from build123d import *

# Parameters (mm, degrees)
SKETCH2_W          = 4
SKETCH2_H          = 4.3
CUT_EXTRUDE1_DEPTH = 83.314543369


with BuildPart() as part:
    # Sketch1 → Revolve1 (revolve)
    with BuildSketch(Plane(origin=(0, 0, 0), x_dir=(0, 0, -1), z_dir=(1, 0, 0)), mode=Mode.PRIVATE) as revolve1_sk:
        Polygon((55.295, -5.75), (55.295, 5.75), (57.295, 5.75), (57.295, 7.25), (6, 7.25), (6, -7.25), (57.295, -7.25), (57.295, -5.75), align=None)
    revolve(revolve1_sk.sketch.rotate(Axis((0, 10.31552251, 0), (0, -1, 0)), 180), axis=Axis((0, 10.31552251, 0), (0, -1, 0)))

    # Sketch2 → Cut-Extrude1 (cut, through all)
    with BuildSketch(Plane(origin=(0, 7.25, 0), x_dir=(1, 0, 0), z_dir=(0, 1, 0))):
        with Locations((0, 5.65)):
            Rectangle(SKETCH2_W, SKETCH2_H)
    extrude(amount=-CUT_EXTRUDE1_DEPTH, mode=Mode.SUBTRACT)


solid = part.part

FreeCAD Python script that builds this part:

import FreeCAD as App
import Part
import Sketcher

V = App.Vector
Q = App.Units.Quantity


def add_polygon(sketch, points):
    """Adds a closed chain of lines whose ends are joined by coincident constraints."""
    first, n = sketch.GeometryCount, len(points)
    for a, b in zip(points, points[1:] + points[:1]):
        sketch.addGeometry(Part.LineSegment(App.Vector(*a, 0), App.Vector(*b, 0)), False)
    for i in range(n):
        sketch.addConstraint(Sketcher.Constraint("Coincident", first + i, 2, first + (i + 1) % n, 1))

doc = App.newDocument("Part")
body = doc.addObject("PartDesign::Body", "Body")

sketch1 = body.newObject("Sketcher::SketchObject", "Sketch")
sketch1.AttachmentSupport = (doc.getObject("YZ_Plane"), [""])
sketch1.MapMode = "FlatFace"
add_polygon(sketch1, [(-5.8, -55.3), (5.8, -55.3), (5.8, -57.3), (7.2, -57.3), (7.2, -6), (-7.2, -6), (-7.2, -57.3), (-5.8, -57.3)])
sketch1.addConstraint(Sketcher.Constraint("Horizontal", 0))
sketch1.addConstraint(Sketcher.Constraint("Vertical", 1))
sketch1.addConstraint(Sketcher.Constraint("Horizontal", 2))
sketch1.addConstraint(Sketcher.Constraint("Vertical", 3))
sketch1.addConstraint(Sketcher.Constraint("Horizontal", 4))
sketch1.addConstraint(Sketcher.Constraint("Vertical", 5))
sketch1.addConstraint(Sketcher.Constraint("Horizontal", 6))
sketch1.addConstraint(Sketcher.Constraint("Vertical", 7))
sketch1.addConstraint(Sketcher.Constraint("Symmetric", 2, 2, 5, 2, -2))
sketch1.addConstraint(Sketcher.Constraint("Equal", 2, 6))
sketch1.addConstraint(Sketcher.Constraint("DistanceY", 1, 2, 1, 1, Q("2 mm")))
sketch1.addConstraint(Sketcher.Constraint("DistanceX", 0, 1, 0, 2, Q("11.5 mm")))
sketch1.addConstraint(Sketcher.Constraint("DistanceX", 2, 1, 2, 2, Q("1.5 mm")))
sketch1.addConstraint(Sketcher.Constraint("DistanceY", 3, 2, -1, 1, Q("6 mm")))
sketch1.addConstraint(Sketcher.Constraint("DistanceY", 3, 1, 3, 2, Q("51.295 mm")))
revolution = body.newObject("PartDesign::Revolution", "Revolution")
revolution.Profile = sketch1
revolution.ReferenceAxis = (sketch1, ["H_Axis"])
revolution.Angle = 360

sketch2 = body.newObject("Sketcher::SketchObject", "Sketch001")
sketch2.AttachmentSupport = (doc.getObject("XZ_Plane"), [""])
sketch2.MapMode = "FlatFace"
sketch2.AttachmentOffset = App.Placement(V(0, 0, -7.25), App.Rotation())
add_polygon(sketch2, [(-2, -7.8), (-2, -3.5), (2, -3.5), (2, -7.8)])
sketch2.addConstraint(Sketcher.Constraint("Vertical", 0))
sketch2.addConstraint(Sketcher.Constraint("Horizontal", 1))
sketch2.addConstraint(Sketcher.Constraint("Vertical", 2))
sketch2.addConstraint(Sketcher.Constraint("Horizontal", 3))
sketch2.addConstraint(Sketcher.Constraint("DistanceX", 1, 1, 1, 2, Q("4 mm")))
sketch2.addConstraint(Sketcher.Constraint("DistanceY", 0, 1, 0, 2, Q("4.3 mm")))
sketch2.addConstraint(Sketcher.Constraint("DistanceX", 0, 2, -1, 1, Q("2 mm")))
sketch2.addConstraint(Sketcher.Constraint("DistanceY", 0, 2, -1, 1, Q("3.5 mm")))
pocket1 = body.newObject("PartDesign::Pocket", "Pocket")
pocket1.Profile = sketch2
pocket1.Type = "ThroughAll"
pocket1.Reversed = True

doc.recompute()
